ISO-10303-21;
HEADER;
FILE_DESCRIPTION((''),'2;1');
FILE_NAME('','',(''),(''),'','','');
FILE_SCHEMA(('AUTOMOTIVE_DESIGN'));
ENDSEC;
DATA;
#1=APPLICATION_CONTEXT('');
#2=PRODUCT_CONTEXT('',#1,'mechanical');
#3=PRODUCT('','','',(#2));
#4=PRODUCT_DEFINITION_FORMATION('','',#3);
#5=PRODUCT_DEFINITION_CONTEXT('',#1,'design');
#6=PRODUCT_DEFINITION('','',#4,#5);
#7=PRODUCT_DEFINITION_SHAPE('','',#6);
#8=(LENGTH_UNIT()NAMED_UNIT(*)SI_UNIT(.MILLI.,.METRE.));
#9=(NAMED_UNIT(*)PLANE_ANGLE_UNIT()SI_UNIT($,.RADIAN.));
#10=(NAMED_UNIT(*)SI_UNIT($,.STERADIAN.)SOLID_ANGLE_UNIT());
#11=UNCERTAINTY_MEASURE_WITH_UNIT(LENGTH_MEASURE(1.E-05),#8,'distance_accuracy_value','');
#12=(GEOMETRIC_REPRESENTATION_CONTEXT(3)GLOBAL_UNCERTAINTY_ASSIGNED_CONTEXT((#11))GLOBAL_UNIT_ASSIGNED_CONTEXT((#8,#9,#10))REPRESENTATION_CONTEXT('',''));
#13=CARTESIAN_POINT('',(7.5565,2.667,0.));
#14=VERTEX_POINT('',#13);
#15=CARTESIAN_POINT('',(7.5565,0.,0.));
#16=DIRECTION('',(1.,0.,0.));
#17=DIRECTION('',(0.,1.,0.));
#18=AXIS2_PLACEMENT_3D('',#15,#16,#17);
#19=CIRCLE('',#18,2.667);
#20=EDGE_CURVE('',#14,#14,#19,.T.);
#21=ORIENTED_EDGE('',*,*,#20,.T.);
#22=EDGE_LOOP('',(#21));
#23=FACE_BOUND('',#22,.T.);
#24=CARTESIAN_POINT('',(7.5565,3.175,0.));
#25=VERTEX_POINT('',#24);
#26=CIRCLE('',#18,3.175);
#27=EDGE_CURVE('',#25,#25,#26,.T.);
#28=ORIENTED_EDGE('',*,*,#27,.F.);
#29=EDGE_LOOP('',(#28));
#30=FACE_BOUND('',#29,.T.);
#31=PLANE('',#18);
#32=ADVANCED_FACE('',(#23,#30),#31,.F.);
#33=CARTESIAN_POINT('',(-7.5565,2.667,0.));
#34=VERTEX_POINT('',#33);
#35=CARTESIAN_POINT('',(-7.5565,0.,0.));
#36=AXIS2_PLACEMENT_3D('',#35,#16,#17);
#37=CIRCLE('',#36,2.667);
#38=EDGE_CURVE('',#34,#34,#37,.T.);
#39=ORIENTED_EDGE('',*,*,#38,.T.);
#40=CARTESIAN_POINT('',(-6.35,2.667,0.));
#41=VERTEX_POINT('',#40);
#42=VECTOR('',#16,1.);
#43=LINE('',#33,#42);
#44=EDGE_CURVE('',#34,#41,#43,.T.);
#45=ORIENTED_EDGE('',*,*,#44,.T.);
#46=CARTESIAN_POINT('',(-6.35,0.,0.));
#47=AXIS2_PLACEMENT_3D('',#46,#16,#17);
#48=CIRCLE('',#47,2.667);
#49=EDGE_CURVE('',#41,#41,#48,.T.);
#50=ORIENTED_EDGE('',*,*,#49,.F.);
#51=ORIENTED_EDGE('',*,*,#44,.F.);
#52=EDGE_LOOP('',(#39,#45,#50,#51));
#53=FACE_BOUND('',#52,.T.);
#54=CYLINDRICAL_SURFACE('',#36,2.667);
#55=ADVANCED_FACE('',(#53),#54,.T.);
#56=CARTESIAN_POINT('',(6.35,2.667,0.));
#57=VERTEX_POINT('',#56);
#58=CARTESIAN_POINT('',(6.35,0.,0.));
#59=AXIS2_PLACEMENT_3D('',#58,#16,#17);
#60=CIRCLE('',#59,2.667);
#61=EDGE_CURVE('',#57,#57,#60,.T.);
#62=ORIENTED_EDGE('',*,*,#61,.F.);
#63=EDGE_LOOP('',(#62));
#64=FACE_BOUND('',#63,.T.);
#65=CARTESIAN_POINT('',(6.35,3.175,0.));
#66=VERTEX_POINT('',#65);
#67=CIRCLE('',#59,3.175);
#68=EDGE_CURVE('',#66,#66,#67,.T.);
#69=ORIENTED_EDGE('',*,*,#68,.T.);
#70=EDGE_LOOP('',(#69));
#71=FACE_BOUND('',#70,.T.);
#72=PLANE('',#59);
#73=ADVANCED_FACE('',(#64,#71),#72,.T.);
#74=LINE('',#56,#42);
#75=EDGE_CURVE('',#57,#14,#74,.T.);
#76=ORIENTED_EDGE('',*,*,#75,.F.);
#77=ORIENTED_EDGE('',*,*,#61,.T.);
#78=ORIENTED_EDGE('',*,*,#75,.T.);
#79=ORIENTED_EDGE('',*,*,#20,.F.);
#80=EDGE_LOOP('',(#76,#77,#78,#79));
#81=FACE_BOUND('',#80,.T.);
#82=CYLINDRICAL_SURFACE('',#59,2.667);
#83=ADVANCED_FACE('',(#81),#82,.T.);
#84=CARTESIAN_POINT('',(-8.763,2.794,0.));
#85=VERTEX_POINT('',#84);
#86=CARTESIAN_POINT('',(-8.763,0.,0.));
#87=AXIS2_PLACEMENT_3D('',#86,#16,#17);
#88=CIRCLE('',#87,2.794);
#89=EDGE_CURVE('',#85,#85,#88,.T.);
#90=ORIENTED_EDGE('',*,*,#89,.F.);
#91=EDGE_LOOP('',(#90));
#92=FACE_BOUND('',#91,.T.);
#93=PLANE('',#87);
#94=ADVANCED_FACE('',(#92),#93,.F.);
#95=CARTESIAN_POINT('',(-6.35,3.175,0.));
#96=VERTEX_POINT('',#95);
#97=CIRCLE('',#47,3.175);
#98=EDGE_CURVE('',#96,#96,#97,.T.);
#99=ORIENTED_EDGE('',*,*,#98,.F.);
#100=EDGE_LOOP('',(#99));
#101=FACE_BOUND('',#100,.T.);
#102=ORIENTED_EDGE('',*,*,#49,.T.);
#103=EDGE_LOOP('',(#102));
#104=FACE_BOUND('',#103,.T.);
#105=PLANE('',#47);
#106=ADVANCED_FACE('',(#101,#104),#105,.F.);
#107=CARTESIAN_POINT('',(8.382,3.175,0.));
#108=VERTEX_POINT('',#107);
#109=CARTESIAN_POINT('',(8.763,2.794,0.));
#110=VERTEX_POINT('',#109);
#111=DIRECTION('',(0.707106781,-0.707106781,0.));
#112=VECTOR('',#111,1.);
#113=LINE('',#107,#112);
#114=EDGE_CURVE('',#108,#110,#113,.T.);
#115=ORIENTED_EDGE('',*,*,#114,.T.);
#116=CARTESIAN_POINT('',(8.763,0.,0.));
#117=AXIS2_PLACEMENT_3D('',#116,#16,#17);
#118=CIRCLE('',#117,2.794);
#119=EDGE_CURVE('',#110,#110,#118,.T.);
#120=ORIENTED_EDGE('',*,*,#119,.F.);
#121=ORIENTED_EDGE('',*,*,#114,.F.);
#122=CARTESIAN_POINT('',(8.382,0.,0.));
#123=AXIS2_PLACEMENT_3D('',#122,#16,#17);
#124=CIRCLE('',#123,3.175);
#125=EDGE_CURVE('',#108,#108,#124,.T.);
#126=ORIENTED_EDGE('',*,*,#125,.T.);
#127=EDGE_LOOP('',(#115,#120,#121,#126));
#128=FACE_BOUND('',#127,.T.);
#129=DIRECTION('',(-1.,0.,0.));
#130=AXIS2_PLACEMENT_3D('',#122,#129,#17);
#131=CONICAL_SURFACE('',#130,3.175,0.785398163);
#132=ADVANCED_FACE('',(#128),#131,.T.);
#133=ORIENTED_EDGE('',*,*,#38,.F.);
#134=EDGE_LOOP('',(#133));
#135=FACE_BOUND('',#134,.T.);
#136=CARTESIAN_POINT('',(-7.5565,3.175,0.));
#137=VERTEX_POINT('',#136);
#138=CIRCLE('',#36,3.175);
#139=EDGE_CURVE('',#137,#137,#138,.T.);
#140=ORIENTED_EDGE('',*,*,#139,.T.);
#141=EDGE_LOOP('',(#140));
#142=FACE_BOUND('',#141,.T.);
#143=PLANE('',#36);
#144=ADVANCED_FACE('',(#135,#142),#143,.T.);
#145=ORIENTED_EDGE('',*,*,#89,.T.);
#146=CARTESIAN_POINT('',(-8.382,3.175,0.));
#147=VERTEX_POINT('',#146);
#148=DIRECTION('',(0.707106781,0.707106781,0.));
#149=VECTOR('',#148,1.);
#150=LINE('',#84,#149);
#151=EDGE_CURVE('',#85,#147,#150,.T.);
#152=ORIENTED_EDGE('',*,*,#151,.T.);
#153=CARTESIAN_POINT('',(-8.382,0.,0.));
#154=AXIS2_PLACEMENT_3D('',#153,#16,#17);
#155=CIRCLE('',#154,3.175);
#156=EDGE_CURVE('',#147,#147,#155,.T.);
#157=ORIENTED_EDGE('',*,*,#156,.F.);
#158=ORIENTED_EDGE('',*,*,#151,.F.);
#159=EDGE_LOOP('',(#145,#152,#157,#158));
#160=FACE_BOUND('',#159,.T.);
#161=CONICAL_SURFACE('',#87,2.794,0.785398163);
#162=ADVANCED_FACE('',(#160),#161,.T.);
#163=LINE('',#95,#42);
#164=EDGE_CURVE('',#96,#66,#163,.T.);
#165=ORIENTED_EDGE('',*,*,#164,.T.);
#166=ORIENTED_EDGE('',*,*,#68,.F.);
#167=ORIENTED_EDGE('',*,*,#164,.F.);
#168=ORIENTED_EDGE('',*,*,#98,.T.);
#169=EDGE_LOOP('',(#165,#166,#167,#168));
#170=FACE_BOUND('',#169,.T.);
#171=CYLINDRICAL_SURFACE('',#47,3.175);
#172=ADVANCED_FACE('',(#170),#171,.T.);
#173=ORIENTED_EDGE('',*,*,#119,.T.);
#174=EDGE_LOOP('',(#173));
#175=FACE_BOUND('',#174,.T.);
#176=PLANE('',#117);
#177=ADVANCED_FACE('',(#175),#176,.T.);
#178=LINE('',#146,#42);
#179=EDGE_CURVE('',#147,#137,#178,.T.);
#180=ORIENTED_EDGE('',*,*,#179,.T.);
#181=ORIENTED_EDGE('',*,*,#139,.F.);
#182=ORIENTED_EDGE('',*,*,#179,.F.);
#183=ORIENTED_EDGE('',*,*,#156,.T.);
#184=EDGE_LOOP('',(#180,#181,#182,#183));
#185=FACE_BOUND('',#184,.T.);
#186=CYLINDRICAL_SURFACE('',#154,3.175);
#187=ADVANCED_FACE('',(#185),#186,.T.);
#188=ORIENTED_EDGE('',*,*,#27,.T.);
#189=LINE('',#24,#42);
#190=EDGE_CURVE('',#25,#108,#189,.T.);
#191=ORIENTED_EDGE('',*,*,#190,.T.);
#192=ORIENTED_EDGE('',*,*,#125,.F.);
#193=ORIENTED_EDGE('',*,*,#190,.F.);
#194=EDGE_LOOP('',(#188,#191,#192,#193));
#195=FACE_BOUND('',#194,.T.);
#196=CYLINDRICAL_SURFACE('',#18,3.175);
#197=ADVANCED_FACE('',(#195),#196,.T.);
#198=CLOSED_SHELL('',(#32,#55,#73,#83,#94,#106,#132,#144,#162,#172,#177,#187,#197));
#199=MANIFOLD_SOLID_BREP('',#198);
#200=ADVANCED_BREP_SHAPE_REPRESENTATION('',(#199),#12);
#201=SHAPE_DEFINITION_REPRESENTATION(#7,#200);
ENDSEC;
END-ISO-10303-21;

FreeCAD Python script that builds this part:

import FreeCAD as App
import Part
import Sketcher

V = App.Vector
Q = App.Units.Quantity

doc = App.newDocument("Part")
body = doc.addObject("PartDesign::Body", "Body")

# Sketch on XY plane
sketch1 = body.newObject("Sketcher::SketchObject", "Sketch")
sketch1.AttachmentSupport = (doc.getObject("XY_Plane"), [""])
sketch1.MapMode = "FlatFace"
sketch1.addGeometry(Part.LineSegment(V(-8.763, 0, 0), V(8.763, 0, 0)), False)
sketch1.addGeometry(Part.LineSegment(V(8.763, 0, 0), V(8.763, 2.794, 0)), False)
sketch1.addGeometry(Part.LineSegment(V(8.763, 2.794, 0), V(8.382, 3.175, 0)), False)
sketch1.addGeometry(Part.LineSegment(V(8.382, 3.175, 0), V(7.5565, 3.175, 0)), False)
sketch1.addGeometry(Part.LineSegment(V(7.5565, 3.175, 0), V(7.5565, 2.667, 0)), False)
sketch1.addGeometry(Part.LineSegment(V(7.5565, 2.667, 0), V(6.35, 2.667, 0)), False)
sketch1.addGeometry(Part.LineSegment(V(6.35, 2.667, 0), V(6.35, 3.175, 0)), False)
sketch1.addGeometry(Part.LineSegment(V(6.35, 3.175, 0), V(-6.35, 3.175, 0)), False)
sketch1.addGeometry(Part.LineSegment(V(-6.35, 3.175, 0), V(-6.35, 2.667, 0)), False)
sketch1.addGeometry(Part.LineSegment(V(-6.35, 2.667, 0), V(-7.5565, 2.667, 0)), False)
sketch1.addGeometry(Part.LineSegment(V(-7.5565, 2.667, 0), V(-7.5565, 3.175, 0)), False)
sketch1.addGeometry(Part.LineSegment(V(-7.5565, 3.175, 0), V(-8.382, 3.175, 0)), False)
sketch1.addGeometry(Part.LineSegment(V(-8.382, 3.175, 0), V(-8.763, 2.794, 0)), False)
sketch1.addGeometry(Part.LineSegment(V(-8.763, 2.794, 0), V(-8.763, 0, 0)), False)
sketch1.addConstraint(Sketcher.Constraint("Coincident", 0, 2, 1, 1))
sketch1.addConstraint(Sketcher.Constraint("Coincident", 1, 2, 2, 1))
sketch1.addConstraint(Sketcher.Constraint("Coincident", 2, 2, 3, 1))
sketch1.addConstraint(Sketcher.Constraint("Coincident", 3, 2, 4, 1))
sketch1.addConstraint(Sketcher.Constraint("Coincident", 4, 2, 5, 1))
sketch1.addConstraint(Sketcher.Constraint("Coincident", 5, 2, 6, 1))
sketch1.addConstraint(Sketcher.Constraint("Coincident", 6, 2, 7, 1))
sketch1.addConstraint(Sketcher.Constraint("Coincident", 7, 2, 8, 1))
sketch1.addConstraint(Sketcher.Constraint("Coincident", 8, 2, 9, 1))
sketch1.addConstraint(Sketcher.Constraint("Coincident", 9, 2, 10, 1))
sketch1.addConstraint(Sketcher.Constraint("Coincident", 10, 2, 11, 1))
sketch1.addConstraint(Sketcher.Constraint("Coincident", 11, 2, 12, 1))
sketch1.addConstraint(Sketcher.Constraint("Coincident", 12, 2, 13, 1))
sketch1.addConstraint(Sketcher.Constraint("Coincident", 13, 2, 0, 1))
sketch1.addConstraint(Sketcher.Constraint("Horizontal", 0))
sketch1.addConstraint(Sketcher.Constraint("Vertical", 1))
sketch1.addConstraint(Sketcher.Constraint("Horizontal", 3))
sketch1.addConstraint(Sketcher.Constraint("Vertical", 4))
sketch1.addConstraint(Sketcher.Constraint("Horizontal", 5))
sketch1.addConstraint(Sketcher.Constraint("Vertical", 6))
sketch1.addConstraint(Sketcher.Constraint("Horizontal", 7))
sketch1.addConstraint(Sketcher.Constraint("Vertical", 8))
sketch1.addConstraint(Sketcher.Constraint("Horizontal", 9))
sketch1.addConstraint(Sketcher.Constraint("Vertical", 10))
sketch1.addConstraint(Sketcher.Constraint("Horizontal", 11))
sketch1.addConstraint(Sketcher.Constraint("Vertical", 13))
sketch1.addConstraint(Sketcher.Constraint("Symmetric", 0, 2, 13, 2, -1, 1))
sketch1.addConstraint(Sketcher.Constraint("Symmetric", 5, 2, 8, 2, -2))
sketch1.addConstraint(Sketcher.Constraint("Symmetric", 3, 2, 10, 2, -2))
sketch1.addConstraint(Sketcher.Constraint("Perpendicular", 2, 12))
sketch1.addConstraint(Sketcher.Constraint("Horizontal", 3, 2, 6, 2))
sketch1.addConstraint(Sketcher.Constraint("Horizontal", 1, 2, 12, 2))
sketch1.addConstraint(Sketcher.Constraint("Equal", 3, 11))
sketch1.addConstraint(Sketcher.Constraint("DistanceX", 7, 2, 7, 1, Q("0.5 in")))
sketch1.addConstraint(Sketcher.Constraint("DistanceX", 0, 1, 0, 2, Q("0.69 in")))
sketch1.addConstraint(Sketcher.Constraint("DistanceY", 1, 1, 1, 2, Q("0.11 in")))
sketch1.addConstraint(Sketcher.Constraint("DistanceY", 4, 2, 4, 1, Q("0.02 in")))
sketch1.addConstraint(Sketcher.Constraint("DistanceX", -1, 1, 2, 2, Q("0.33 in")))
sketch1.addConstraint(Sketcher.Constraint("DistanceX", 3, 2, 3, 1, Q("0.0325 in")))
revolution = body.newObject("PartDesign::Revolution", "Revolution")
revolution.Profile = sketch1
revolution.ReferenceAxis = (sketch1, ["H_Axis"])
revolution.Angle = 360

doc.recompute()
